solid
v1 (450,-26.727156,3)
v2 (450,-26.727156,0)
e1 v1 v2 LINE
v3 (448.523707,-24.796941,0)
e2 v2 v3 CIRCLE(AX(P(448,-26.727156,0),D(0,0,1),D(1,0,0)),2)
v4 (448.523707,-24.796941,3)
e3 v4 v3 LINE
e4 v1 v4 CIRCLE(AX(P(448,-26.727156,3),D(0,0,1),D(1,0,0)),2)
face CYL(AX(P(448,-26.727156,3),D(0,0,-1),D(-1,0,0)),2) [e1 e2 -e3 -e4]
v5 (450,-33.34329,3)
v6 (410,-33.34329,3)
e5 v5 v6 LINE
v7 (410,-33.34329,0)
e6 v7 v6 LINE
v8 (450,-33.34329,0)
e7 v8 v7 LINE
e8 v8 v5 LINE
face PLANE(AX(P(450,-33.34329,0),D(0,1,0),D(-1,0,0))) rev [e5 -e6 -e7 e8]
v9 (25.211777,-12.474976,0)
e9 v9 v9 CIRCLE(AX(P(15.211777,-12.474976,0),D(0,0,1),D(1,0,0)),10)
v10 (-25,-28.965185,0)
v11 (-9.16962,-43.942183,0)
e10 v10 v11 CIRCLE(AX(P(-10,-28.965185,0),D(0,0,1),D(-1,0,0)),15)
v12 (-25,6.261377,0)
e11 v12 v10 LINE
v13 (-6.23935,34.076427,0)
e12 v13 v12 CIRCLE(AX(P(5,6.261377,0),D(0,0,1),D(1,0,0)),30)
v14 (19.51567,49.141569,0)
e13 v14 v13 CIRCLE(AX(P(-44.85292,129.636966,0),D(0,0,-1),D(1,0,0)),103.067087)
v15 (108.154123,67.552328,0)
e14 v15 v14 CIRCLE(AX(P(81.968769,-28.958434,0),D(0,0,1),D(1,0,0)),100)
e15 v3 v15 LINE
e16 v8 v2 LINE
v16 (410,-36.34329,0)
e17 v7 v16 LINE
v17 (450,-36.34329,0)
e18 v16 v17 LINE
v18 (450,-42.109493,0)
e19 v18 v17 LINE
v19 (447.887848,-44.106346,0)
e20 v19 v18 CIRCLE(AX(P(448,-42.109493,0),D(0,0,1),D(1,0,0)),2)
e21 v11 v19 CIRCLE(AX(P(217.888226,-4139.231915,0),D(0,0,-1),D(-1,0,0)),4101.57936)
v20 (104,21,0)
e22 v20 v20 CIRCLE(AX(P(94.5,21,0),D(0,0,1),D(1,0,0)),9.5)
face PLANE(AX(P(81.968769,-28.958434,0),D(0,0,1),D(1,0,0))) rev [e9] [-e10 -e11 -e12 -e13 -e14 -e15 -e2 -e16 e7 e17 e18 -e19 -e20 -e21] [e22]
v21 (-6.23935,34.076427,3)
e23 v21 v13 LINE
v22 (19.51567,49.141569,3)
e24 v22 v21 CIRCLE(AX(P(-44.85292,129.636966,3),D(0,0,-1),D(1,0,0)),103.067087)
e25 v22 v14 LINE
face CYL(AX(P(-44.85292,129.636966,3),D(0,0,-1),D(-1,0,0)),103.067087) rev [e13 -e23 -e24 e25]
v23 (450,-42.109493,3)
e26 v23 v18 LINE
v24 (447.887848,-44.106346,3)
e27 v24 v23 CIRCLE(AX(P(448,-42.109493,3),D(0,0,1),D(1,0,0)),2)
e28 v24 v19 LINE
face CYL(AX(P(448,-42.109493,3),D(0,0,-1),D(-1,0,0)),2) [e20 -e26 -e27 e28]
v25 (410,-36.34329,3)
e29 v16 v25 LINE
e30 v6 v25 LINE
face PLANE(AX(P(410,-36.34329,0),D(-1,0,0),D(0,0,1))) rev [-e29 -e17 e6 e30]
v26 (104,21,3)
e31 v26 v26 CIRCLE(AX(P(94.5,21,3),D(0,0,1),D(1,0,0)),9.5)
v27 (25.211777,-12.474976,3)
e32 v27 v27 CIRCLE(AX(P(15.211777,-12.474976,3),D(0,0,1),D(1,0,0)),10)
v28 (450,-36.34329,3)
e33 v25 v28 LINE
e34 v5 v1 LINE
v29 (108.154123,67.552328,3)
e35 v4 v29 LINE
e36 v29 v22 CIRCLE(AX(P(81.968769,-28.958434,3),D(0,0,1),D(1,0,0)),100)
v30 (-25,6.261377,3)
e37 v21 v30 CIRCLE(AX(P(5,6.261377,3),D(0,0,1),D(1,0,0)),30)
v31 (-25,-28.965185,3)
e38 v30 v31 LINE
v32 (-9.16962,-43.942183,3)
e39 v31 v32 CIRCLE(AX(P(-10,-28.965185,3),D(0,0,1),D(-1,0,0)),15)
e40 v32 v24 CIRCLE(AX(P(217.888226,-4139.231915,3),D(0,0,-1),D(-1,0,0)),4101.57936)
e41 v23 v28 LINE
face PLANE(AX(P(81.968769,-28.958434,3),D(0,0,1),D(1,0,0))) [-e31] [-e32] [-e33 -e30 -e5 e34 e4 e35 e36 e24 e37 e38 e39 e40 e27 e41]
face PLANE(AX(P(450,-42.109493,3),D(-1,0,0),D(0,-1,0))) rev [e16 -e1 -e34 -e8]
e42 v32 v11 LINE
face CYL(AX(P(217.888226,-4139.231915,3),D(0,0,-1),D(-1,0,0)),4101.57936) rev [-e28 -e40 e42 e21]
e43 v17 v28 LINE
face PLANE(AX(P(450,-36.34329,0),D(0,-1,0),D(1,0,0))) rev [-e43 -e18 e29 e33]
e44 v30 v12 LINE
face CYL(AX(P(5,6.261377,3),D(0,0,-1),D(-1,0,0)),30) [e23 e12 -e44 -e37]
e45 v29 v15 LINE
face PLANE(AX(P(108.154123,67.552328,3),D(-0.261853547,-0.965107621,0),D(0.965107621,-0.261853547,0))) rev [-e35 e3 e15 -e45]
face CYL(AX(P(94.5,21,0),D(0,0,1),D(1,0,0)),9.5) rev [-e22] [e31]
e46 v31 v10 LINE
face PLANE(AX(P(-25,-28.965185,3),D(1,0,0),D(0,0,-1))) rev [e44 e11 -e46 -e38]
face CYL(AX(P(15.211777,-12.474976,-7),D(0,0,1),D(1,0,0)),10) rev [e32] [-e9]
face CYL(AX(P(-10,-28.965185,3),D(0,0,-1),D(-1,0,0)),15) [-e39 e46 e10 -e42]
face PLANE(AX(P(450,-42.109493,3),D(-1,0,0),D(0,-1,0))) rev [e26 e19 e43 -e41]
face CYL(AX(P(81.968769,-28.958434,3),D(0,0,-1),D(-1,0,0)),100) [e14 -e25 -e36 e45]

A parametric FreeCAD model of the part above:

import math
import FreeCAD as App
import Part
import Sketcher

V = App.Vector

doc = App.newDocument("Part")
body = doc.addObject("PartDesign::Body", "Body")

sketch1 = doc.addObject("Sketcher::SketchObject", "Sketch")
body.addObject(sketch1)
sketch1.AttachmentSupport = (doc.XY_Plane, [""])
sketch1.MapMode = "FlatFace"
sketch1.addGeometry([
    Part.LineSegment(V(448.5, -24.8, 0), V(108.2, 67.6, 0)),
    Part.ArcOfCircle(Part.Circle(V(82, -29, 0), V(0, 0, 1), 100), math.radians(75), math.radians(129)),
    Part.ArcOfCircle(Part.Circle(V(-44.9, 129.6, 0), V(0, 0, 1), 103.1), math.radians(-68), math.radians(-51.35)),
    Part.ArcOfCircle(Part.Circle(V(5, 6.3, 0), V(0, 0, 1), 30), math.radians(112), math.radians(180)),
    Part.LineSegment(V(-25, 6.3, 0), V(-25, -29, 0)),
    Part.ArcOfCircle(Part.Circle(V(-10, -29, 0), V(0, 0, 1), 15), math.radians(180), math.radians(273)),
    Part.ArcOfCircle(Part.Circle(V(217.9, -4139.2, 0), V(0, 0, 1), 4101.6), math.radians(86.79), math.radians(93.17)),
    Part.ArcOfCircle(Part.Circle(V(448, -42.1, 0), V(0, 0, 1), 2), math.radians(-93), math.radians(0)),
    Part.LineSegment(V(450, -42.1, 0), V(450, -26.7, 0)),
    Part.ArcOfCircle(Part.Circle(V(448, -26.7, 0), V(0, 0, 1), 2), math.radians(0), math.radians(75)),
], False)
sketch1.addConstraint([
    Sketcher.Constraint("Tangent", 0, 2, 1, 1),
    Sketcher.Constraint("Tangent", 1, 2, 2, 2),
    Sketcher.Constraint("Tangent", 2, 1, 3, 1),
    Sketcher.Constraint("Tangent", 3, 2, 4, 1),
    Sketcher.Constraint("Tangent", 4, 2, 5, 1),
    Sketcher.Constraint("Tangent", 5, 2, 6, 2),
    Sketcher.Constraint("Tangent", 6, 1, 7, 1),
    Sketcher.Constraint("Tangent", 7, 2, 8, 1),
    Sketcher.Constraint("Tangent", 8, 2, 9, 1),
    Sketcher.Constraint("Tangent", 9, 2, 0, 1),
    Sketcher.Constraint("Vertical", 4),
    Sketcher.Constraint("Vertical", 8),
    Sketcher.Constraint("Equal", 7, 9),
    Sketcher.Constraint("Radius", 1, 100.0),
    Sketcher.Constraint("Radius", 3, 30.0),
    Sketcher.Constraint("Radius", 5, 15.0),
    Sketcher.Constraint("Radius", 7, 2.0),
    Sketcher.Constraint("DistanceX", -1, 1, 3, 3, 5.0),
    Sketcher.Constraint("DistanceX", -1, 1, 7, 3, 448.0),
    Sketcher.Constraint("Radius", 6, 4101.579361),
    Sketcher.Constraint("Radius", 2, 103.067087),
    Sketcher.Constraint("DistanceY", 1, 3, 2, 3, 158.5954),
    Sketcher.Constraint("DistanceY", 4, 2, 4, 1, 35.226563),
    Sketcher.Constraint("DistanceY", 8, 1, 8, 2, 15.382337),
    Sketcher.Constraint("DistanceX", -1, 1, 1, 3, 81.968769),
    Sketcher.Constraint("DistanceY", -1, 1, 0, 2, 67.552328),
    Sketcher.Constraint("DistanceY", 9, 2, -1, 1, 24.796941),
])
pad1 = doc.addObject("PartDesign::Pad", "Pad")
body.addObject(pad1)
pad1.Profile = sketch1
pad1.Length = 3

sketch2 = doc.addObject("Sketcher::SketchObject", "Sketch001")
body.addObject(sketch2)
sketch2.AttachmentSupport = (doc.XY_Plane, [""])
sketch2.MapMode = "FlatFace"
sketch2.AttachmentOffset = App.Placement(V(0, 0, 3), App.Rotation())
sketch2.addGeometry(Part.Circle(V(94, 21, 0), V(0, 0, 1), 10), False)
sketch2.addConstraint([
    Sketcher.Constraint("Diameter", 0, 19.0),
    Sketcher.Constraint("DistanceY", -1, 1, 0, 3, 21.0),
    Sketcher.Constraint("DistanceX", -1, 1, 0, 3, 94.5),
])
pocket1 = doc.addObject("PartDesign::Pocket", "Pocket")
body.addObject(pocket1)
pocket1.Profile = sketch2
pocket1.Type = "ThroughAll"

sketch3 = doc.addObject("Sketcher::SketchObject", "Sketch002")
body.addObject(sketch3)
sketch3.AttachmentSupport = (doc.XY_Plane, [""])
sketch3.MapMode = "FlatFace"
sketch3.AttachmentOffset = App.Placement(V(0, 0, 3), App.Rotation())
sketch3.addGeometry([
    Part.LineSegment(V(410, -33.3, 0), V(410, -36.3, 0)),
    Part.LineSegment(V(410, -36.3, 0), V(450, -36.3, 0)),
    Part.LineSegment(V(450, -36.3, 0), V(450, -33.3, 0)),
    Part.LineSegment(V(450, -33.3, 0), V(410, -33.3, 0)),
], False)
sketch3.addConstraint([
    Sketcher.Constraint("Coincident", 0, 2, 1, 1),
    Sketcher.Constraint("Coincident", 1, 2, 2, 1),
    Sketcher.Constraint("Coincident", 2, 2, 3, 1),
    Sketcher.Constraint("Coincident", 3, 2, 0, 1),
    Sketcher.Constraint("Vertical", 0),
    Sketcher.Constraint("Horizontal", 1),
    Sketcher.Constraint("Vertical", 2),
    Sketcher.Constraint("Horizontal", 3),
    Sketcher.Constraint("DistanceX", 1, 1, 1, 2, 40.0),
    Sketcher.Constraint("DistanceY", 0, 2, 0, 1, 3.0),
    Sketcher.Constraint("DistanceX", -1, 1, 0, 2, 410.0),
    Sketcher.Constraint("DistanceY", 0, 2, -1, 1, 36.34329),
])
pocket2 = doc.addObject("PartDesign::Pocket", "Pocket001")
body.addObject(pocket2)
pocket2.Profile = sketch3
pocket2.Type = "ThroughAll"

sketch4 = doc.addObject("Sketcher::SketchObject", "Sketch003")
body.addObject(sketch4)
sketch4.AttachmentSupport = (doc.XY_Plane, [""])
sketch4.MapMode = "FlatFace"
sketch4.AttachmentOffset = App.Placement(V(0, 0, 3), App.Rotation())
sketch4.addGeometry(Part.Circle(V(15, -12, 0), V(0, 0, 1), 10), False)
sketch4.addConstraint([
    Sketcher.Constraint("Diameter", 0, 20.0),
    Sketcher.Constraint("DistanceX", -1, 1, 0, 3, 15.211777),
    Sketcher.Constraint("DistanceY", 0, 3, -1, 1, 12.474976),
])
pocket3 = doc.addObject("PartDesign::Pocket", "Pocket002")
body.addObject(pocket3)
pocket3.Profile = sketch4
pocket3.Length = 10

doc.recompute()
